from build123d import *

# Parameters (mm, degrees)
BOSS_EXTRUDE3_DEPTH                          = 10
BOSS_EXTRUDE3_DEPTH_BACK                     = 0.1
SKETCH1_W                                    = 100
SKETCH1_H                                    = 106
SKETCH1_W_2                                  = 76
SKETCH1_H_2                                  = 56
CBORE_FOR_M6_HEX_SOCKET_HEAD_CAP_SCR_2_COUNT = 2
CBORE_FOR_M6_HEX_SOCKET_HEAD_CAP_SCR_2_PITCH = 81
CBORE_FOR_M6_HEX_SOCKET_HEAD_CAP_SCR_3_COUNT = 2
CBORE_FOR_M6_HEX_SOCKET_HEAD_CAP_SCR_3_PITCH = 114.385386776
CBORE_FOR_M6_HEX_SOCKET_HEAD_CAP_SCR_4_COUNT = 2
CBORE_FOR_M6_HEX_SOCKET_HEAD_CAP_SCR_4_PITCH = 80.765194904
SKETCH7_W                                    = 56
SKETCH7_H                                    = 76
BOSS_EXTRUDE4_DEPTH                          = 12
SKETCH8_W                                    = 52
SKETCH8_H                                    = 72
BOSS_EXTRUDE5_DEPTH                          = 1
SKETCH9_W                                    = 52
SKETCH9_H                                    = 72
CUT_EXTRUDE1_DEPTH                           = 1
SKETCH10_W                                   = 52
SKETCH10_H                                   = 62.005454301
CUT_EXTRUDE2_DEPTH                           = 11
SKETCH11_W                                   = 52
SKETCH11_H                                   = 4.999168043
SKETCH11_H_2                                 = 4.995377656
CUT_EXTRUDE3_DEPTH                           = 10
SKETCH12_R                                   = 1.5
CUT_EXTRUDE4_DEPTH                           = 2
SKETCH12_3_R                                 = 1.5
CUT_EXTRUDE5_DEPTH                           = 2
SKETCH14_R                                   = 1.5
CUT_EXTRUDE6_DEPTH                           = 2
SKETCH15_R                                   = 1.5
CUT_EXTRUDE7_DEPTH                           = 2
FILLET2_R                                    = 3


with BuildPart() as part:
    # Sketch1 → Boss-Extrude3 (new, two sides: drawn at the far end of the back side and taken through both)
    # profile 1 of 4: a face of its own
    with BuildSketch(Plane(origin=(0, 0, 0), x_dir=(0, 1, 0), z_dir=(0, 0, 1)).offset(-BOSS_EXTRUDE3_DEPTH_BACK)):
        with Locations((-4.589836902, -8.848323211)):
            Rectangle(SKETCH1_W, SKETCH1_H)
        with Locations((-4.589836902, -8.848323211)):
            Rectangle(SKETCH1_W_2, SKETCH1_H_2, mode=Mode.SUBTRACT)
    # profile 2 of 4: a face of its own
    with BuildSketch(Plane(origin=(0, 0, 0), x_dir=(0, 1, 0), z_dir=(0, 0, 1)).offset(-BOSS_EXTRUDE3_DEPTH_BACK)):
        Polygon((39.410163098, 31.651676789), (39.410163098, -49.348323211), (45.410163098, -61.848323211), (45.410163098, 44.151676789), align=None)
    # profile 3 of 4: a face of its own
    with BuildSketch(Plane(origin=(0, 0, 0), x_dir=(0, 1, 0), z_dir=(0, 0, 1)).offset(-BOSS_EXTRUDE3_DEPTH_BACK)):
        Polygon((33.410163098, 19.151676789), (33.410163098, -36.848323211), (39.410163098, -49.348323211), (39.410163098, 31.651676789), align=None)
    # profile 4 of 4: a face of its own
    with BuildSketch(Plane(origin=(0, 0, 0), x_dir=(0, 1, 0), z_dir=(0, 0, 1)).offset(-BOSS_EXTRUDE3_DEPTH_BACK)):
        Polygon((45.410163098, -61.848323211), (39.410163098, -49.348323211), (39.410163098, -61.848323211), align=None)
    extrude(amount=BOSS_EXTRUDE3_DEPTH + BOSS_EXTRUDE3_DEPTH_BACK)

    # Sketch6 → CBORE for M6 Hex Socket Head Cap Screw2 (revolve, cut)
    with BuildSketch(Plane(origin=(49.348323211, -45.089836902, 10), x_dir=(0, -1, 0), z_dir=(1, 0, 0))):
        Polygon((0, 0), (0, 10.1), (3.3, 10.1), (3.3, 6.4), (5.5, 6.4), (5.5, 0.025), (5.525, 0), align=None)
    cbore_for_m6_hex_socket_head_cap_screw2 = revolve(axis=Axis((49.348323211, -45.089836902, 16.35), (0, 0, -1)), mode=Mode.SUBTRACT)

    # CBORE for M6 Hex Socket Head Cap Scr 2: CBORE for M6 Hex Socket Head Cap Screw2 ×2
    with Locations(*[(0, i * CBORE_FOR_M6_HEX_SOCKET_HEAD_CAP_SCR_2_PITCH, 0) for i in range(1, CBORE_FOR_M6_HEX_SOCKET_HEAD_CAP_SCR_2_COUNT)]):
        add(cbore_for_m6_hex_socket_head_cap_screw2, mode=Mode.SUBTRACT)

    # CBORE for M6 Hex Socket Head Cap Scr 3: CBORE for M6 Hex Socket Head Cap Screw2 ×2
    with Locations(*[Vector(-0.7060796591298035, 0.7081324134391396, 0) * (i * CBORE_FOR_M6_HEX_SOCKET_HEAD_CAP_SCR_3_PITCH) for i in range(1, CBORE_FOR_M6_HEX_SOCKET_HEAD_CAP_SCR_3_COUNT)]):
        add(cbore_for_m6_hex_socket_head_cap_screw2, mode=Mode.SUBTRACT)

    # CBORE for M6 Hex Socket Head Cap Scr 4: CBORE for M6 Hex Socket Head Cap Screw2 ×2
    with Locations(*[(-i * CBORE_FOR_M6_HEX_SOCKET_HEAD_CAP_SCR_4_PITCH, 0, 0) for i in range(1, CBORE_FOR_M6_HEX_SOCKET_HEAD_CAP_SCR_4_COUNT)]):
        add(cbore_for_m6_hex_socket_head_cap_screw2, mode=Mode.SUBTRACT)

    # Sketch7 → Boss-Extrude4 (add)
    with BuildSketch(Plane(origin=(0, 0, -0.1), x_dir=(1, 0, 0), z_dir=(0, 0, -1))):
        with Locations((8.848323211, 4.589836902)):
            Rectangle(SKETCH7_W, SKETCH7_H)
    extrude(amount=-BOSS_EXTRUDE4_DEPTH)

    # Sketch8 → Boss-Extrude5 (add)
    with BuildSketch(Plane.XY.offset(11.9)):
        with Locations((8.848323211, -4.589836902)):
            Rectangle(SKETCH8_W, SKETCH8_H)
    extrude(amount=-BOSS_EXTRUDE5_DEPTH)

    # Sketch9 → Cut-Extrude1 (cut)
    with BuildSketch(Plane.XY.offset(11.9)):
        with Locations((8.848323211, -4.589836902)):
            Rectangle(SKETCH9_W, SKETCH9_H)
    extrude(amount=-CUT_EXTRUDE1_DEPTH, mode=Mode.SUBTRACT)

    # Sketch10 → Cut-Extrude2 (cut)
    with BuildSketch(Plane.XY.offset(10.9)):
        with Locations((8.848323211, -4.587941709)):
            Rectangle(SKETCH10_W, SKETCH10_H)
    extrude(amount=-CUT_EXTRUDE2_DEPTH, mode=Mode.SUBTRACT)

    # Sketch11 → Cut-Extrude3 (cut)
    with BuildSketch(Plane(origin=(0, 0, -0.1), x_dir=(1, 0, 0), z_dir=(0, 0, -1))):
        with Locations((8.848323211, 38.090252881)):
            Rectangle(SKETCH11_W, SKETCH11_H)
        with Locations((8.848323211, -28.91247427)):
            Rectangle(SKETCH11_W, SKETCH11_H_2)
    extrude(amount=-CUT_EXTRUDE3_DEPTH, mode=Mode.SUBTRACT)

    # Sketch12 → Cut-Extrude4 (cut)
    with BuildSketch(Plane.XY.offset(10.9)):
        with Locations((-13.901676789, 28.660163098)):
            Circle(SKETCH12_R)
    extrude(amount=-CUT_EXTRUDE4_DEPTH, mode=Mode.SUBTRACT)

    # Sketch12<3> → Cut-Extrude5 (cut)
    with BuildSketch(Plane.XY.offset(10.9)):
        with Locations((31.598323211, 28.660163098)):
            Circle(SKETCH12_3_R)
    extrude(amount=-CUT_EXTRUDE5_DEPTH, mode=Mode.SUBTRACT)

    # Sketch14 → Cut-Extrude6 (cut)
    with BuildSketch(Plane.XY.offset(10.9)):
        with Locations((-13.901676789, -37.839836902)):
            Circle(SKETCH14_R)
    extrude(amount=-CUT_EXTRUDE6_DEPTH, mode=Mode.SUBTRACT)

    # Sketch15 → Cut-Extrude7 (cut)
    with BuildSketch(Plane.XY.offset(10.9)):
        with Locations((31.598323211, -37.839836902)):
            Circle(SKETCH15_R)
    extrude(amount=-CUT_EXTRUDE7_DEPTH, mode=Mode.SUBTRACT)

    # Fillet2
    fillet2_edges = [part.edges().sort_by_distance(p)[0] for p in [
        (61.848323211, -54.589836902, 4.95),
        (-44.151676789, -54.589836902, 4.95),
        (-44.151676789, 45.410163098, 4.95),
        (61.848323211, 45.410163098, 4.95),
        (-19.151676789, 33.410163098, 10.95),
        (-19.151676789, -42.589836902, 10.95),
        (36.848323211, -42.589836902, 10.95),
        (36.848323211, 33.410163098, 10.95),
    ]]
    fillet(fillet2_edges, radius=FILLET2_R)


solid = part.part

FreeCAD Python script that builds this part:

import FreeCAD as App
import Part
import Sketcher

V = App.Vector
Q = App.Units.Quantity


def edges_at(feature, points):
    """Names of the edges that pass closest to the given points."""
    edges = feature.Shape.Edges
    near = lambda p: min(range(len(edges)), key=lambda i: edges[i].distToShape(Part.Vertex(*p))[0])
    return sorted({f"Edge{near(p) + 1}" for p in points})

doc = App.newDocument("Part")
body = doc.addObject("PartDesign::Body", "Body")

sketch1 = body.newObject("Sketcher::SketchObject", "Sketch")
sketch1.AttachmentSupport = (doc.getObject("XY_Plane"), [""])
sketch1.MapMode = "FlatFace"
sketch1.addGeometry(Part.LineSegment(V(-44, -55, 0), V(62, -55, 0)), False)
sketch1.addGeometry(Part.LineSegment(V(62, -55, 0), V(62, 45, 0)), False)
sketch1.addGeometry(Part.LineSegment(V(62, 45, 0), V(-44, 45, 0)), False)
sketch1.addGeometry(Part.LineSegment(V(-44, 45, 0), V(-44, -55, 0)), False)
sketch1.addGeometry(Part.LineSegment(V(-19, -43, 0), V(-19, 33, 0)), False)
sketch1.addGeometry(Part.LineSegment(V(-19, 33, 0), V(37, 33, 0)), False)
sketch1.addGeometry(Part.LineSegment(V(37, 33, 0), V(37, -43, 0)), False)
sketch1.addGeometry(Part.LineSegment(V(37, -43, 0), V(-19, -43, 0)), False)
sketch1.addConstraint(Sketcher.Constraint("Coincident", 0, 2, 1, 1))
sketch1.addConstraint(Sketcher.Constraint("Coincident", 1, 2, 2, 1))
sketch1.addConstraint(Sketcher.Constraint("Coincident", 2, 2, 3, 1))
sketch1.addConstraint(Sketcher.Constraint("Coincident", 3, 2, 0, 1))
sketch1.addConstraint(Sketcher.Constraint("Coincident", 4, 2, 5, 1))
sketch1.addConstraint(Sketcher.Constraint("Coincident", 5, 2, 6, 1))
sketch1.addConstraint(Sketcher.Constraint("Coincident", 6, 2, 7, 1))
sketch1.addConstraint(Sketcher.Constraint("Coincident", 7, 2, 4, 1))
sketch1.addConstraint(Sketcher.Constraint("Horizontal", 0))
sketch1.addConstraint(Sketcher.Constraint("Vertical", 1))
sketch1.addConstraint(Sketcher.Constraint("Horizontal", 2))
sketch1.addConstraint(Sketcher.Constraint("Vertical", 3))
sketch1.addConstraint(Sketcher.Constraint("Vertical", 4))
sketch1.addConstraint(Sketcher.Constraint("Horizontal", 5))
sketch1.addConstraint(Sketcher.Constraint("Vertical", 6))
sketch1.addConstraint(Sketcher.Constraint("Horizontal", 7))
sketch1.addConstraint(Sketcher.Constraint("DistanceX", 0, 1, 0, 2, 106.0))
sketch1.addConstraint(Sketcher.Constraint("DistanceX", 5, 1, 5, 2, 56.0))
sketch1.addConstraint(Sketcher.Constraint("DistanceY", 1, 1, 1, 2, 100.0))
sketch1.addConstraint(Sketcher.Constraint("DistanceY", 4, 1, 4, 2, 76.0))
sketch1.addConstraint(Sketcher.Constraint("DistanceX", 2, 2, 4, 2, 25.0))
sketch1.addConstraint(Sketcher.Constraint("DistanceY", 4, 2, 2, 2, 12.0))
sketch1.addConstraint(Sketcher.Constraint("DistanceX", -1, 1, 0, 2, 61.848323))
sketch1.addConstraint(Sketcher.Constraint("DistanceY", 0, 2, -1, 1, 54.589837))
pad1 = body.newObject("PartDesign::Pad", "Pad")
pad1.Profile = sketch1
pad1.Type = "TwoLengths"
pad1.Length = 10
pad1.Length2 = 0.1

sketch2 = body.newObject("Sketcher::SketchObject", "Sketch001")
sketch2.AttachmentSupport = (doc.getObject("YZ_Plane"), [""])
sketch2.MapMode = "FlatFace"
sketch2.AttachmentOffset = App.Placement(V(0, 0, 49.348323), App.Rotation())
sketch2.addGeometry(Part.LineSegment(V(-45.09, -0.1, 0), V(-45.09, 10, 0)), False)
sketch2.addGeometry(Part.LineSegment(V(-45.09, 10, 0), V(-50.615, 10, 0)), False)
sketch2.addGeometry(Part.LineSegment(V(-50.615, 10, 0), V(-50.59, 9.975, 0)), False)
sketch2.addGeometry(Part.LineSegment(V(-50.59, 9.975, 0), V(-50.59, 3.6, 0)), False)
sketch2.addGeometry(Part.LineSegment(V(-50.59, 3.6, 0), V(-48.39, 3.6, 0)), False)
sketch2.addGeometry(Part.LineSegment(V(-48.39, 3.6, 0), V(-48.39, -0.1, 0)), False)
sketch2.addGeometry(Part.LineSegment(V(-48.39, -0.1, 0), V(-45.09, -0.1, 0)), False)
sketch2.addGeometry(Part.LineSegment(V(-45.09, 10, 0), V(-45.09, -0.1, 0)), True)
sketch2.addConstraint(Sketcher.Constraint("Coincident", 0, 2, 1, 1))
sketch2.addConstraint(Sketcher.Constraint("Coincident", 1, 2, 2, 1))
sketch2.addConstraint(Sketcher.Constraint("Coincident", 2, 2, 3, 1))
sketch2.addConstraint(Sketcher.Constraint("Coincident", 3, 2, 4, 1))
sketch2.addConstraint(Sketcher.Constraint("Coincident", 4, 2, 5, 1))
sketch2.addConstraint(Sketcher.Constraint("Coincident", 5, 2, 6, 1))
sketch2.addConstraint(Sketcher.Constraint("Coincident", 6, 2, 0, 1))
sketch2.addConstraint(Sketcher.Constraint("Vertical", 0))
sketch2.addConstraint(Sketcher.Constraint("Horizontal", 1))
sketch2.addConstraint(Sketcher.Constraint("Vertical", 3))
sketch2.addConstraint(Sketcher.Constraint("Horizontal", 4))
sketch2.addConstraint(Sketcher.Constraint("Vertical", 5))
sketch2.addConstraint(Sketcher.Constraint("Horizontal", 6))
sketch2.addConstraint(Sketcher.Constraint("Vertical", 7))
sketch2.addConstraint(Sketcher.Constraint("Coincident", 7, 1, 0, 2))
sketch2.addConstraint(Sketcher.Constraint("Horizontal", 5, 2, 7, 2))
sketch2.addConstraint(Sketcher.Constraint("Angle", 2, Q("-45 deg")))
sketch2.addConstraint(Sketcher.Constraint("DistanceX", 4, 1, 4, 2, 2.2))
sketch2.addConstraint(Sketcher.Constraint("DistanceX", 6, 1, 6, 2, 3.3))
sketch2.addConstraint(Sketcher.Constraint("DistanceY", 0, 1, 0, 2, 10.1))
sketch2.addConstraint(Sketcher.Constraint("DistanceY", 5, 2, 5, 1, 3.7))
sketch2.addConstraint(Sketcher.Constraint("DistanceY", -1, 1, 0, 2, 10.0))
sketch2.addConstraint(Sketcher.Constraint("DistanceX", 1, 2, 1, 1, 5.525))
sketch2.addConstraint(Sketcher.Constraint("DistanceX", 0, 2, -1, 1, 45.089837))
groove = body.newObject("PartDesign::Groove", "Groove")
groove.Profile = sketch2
groove.ReferenceAxis = (sketch2, ["Axis0"])
groove.Angle = 360
doc.recompute()

linearpattern = body.newObject("PartDesign::LinearPattern", "LinearPattern")
linearpattern.Originals = [groove]
linearpattern.Direction = (doc.getObject("Y_Axis"), [""])
linearpattern.Mode = "offset"
linearpattern.Offset = 81
linearpattern.Occurrences = 2
body.Tip = linearpattern
doc.recompute()

datumline = body.newObject("PartDesign::Line", "DatumLine")
datumline.Placement = App.Placement(V(0, 0, 0), App.Rotation(V(0, 0, 1), V(-0.706079659, 0.708132413, 0)))
linearpattern2 = body.newObject("PartDesign::LinearPattern", "LinearPattern001")
linearpattern2.Originals = [groove]
linearpattern2.Direction = (datumline, [""])
linearpattern2.Mode = "offset"
linearpattern2.Offset = 114.385387
linearpattern2.Occurrences = 2
body.Tip = linearpattern2
doc.recompute()

linearpattern3 = body.newObject("PartDesign::LinearPattern", "LinearPattern002")
linearpattern3.Originals = [groove]
linearpattern3.Direction = (doc.getObject("X_Axis"), [""])
linearpattern3.Mode = "offset"
linearpattern3.Offset = 80.765195
linearpattern3.Occurrences = 2
linearpattern3.Reversed = True
body.Tip = linearpattern3

sketch3 = body.newObject("Sketcher::SketchObject", "Sketch002")
sketch3.AttachmentSupport = (doc.getObject("XY_Plane"), [""])
sketch3.MapMode = "FlatFace"
sketch3.AttachmentOffset = App.Placement(V(0, 0, -0.1), App.Rotation())
sketch3.addGeometry(Part.LineSegment(V(-19, -43, 0), V(-19, 33, 0)), False)
sketch3.addGeometry(Part.LineSegment(V(-19, 33, 0), V(37, 33, 0)), False)
sketch3.addGeometry(Part.LineSegment(V(37, 33, 0), V(37, -43, 0)), False)
sketch3.addGeometry(Part.LineSegment(V(37, -43, 0), V(-19, -43, 0)), False)
sketch3.addConstraint(Sketcher.Constraint("Coincident", 0, 2, 1, 1))
sketch3.addConstraint(Sketcher.Constraint("Coincident", 1, 2, 2, 1))
sketch3.addConstraint(Sketcher.Constraint("Coincident", 2, 2, 3, 1))
sketch3.addConstraint(Sketcher.Constraint("Coincident", 3, 2, 0, 1))
sketch3.addConstraint(Sketcher.Constraint("Vertical", 0))
sketch3.addConstraint(Sketcher.Constraint("Horizontal", 1))
sketch3.addConstraint(Sketcher.Constraint("Vertical", 2))
sketch3.addConstraint(Sketcher.Constraint("Horizontal", 3))
sketch3.addConstraint(Sketcher.Constraint("DistanceX", 1, 1, 1, 2, 56.0))
sketch3.addConstraint(Sketcher.Constraint("DistanceY", 0, 1, 0, 2, 76.0))
sketch3.addConstraint(Sketcher.Constraint("DistanceX", 0, 2, -1, 1, 19.151677))
sketch3.addConstraint(Sketcher.Constraint("DistanceY", -1, 1, 0, 2, 33.410163))
pad2 = body.newObject("PartDesign::Pad", "Pad001")
pad2.Profile = sketch3
pad2.Length = 12

sketch4 = body.newObject("Sketcher::SketchObject", "Sketch003")
sketch4.AttachmentSupport = (doc.getObject("XY_Plane"), [""])
sketch4.MapMode = "FlatFace"
sketch4.AttachmentOffset = App.Placement(V(0, 0, 11.9), App.Rotation())
sketch4.addGeometry(Part.LineSegment(V(-17, 31, 0), V(-17, -41, 0)), False)
sketch4.addGeometry(Part.LineSegment(V(-17, -41, 0), V(35, -41, 0)), False)
sketch4.addGeometry(Part.LineSegment(V(35, -41, 0), V(35, 31, 0)), False)
sketch4.addGeometry(Part.LineSegment(V(35, 31, 0), V(-17, 31, 0)), False)
sketch4.addConstraint(Sketcher.Constraint("Coincident", 0, 2, 1, 1))
sketch4.addConstraint(Sketcher.Constraint("Coincident", 1, 2, 2, 1))
sketch4.addConstraint(Sketcher.Constraint("Coincident", 2, 2, 3, 1))
sketch4.addConstraint(Sketcher.Constraint("Coincident", 3, 2, 0, 1))
sketch4.addConstraint(Sketcher.Constraint("Vertical", 0))
sketch4.addConstraint(Sketcher.Constraint("Horizontal", 1))
sketch4.addConstraint(Sketcher.Constraint("Vertical", 2))
sketch4.addConstraint(Sketcher.Constraint("Horizontal", 3))
sketch4.addConstraint(Sketcher.Constraint("DistanceX", 1, 1, 1, 2, 52.0))
sketch4.addConstraint(Sketcher.Constraint("DistanceY", 0, 2, 0, 1, 72.0))
sketch4.addConstraint(Sketcher.Constraint("DistanceX", 0, 2, -1, 1, 17.151677))
sketch4.addConstraint(Sketcher.Constraint("DistanceY", 0, 2, -1, 1, 40.589837))
pad3 = body.newObject("PartDesign::Pad", "Pad002")
pad3.Profile = sketch4
pad3.Length = 1
pad3.Reversed = True

sketch5 = body.newObject("Sketcher::SketchObject", "Sketch004")
sketch5.AttachmentSupport = (doc.getObject("XY_Plane"), [""])
sketch5.MapMode = "FlatFace"
sketch5.AttachmentOffset = App.Placement(V(0, 0, 11.9), App.Rotation())
sketch5.addGeometry(Part.LineSegment(V(-17, 31, 0), V(-17, -41, 0)), False)
sketch5.addGeometry(Part.LineSegment(V(-17, -41, 0), V(35, -41, 0)), False)
sketch5.addGeometry(Part.LineSegment(V(35, -41, 0), V(35, 31, 0)), False)
sketch5.addGeometry(Part.LineSegment(V(35, 31, 0), V(-17, 31, 0)), False)
sketch5.addConstraint(Sketcher.Constraint("Coincident", 0, 2, 1, 1))
sketch5.addConstraint(Sketcher.Constraint("Coincident", 1, 2, 2, 1))
sketch5.addConstraint(Sketcher.Constraint("Coincident", 2, 2, 3, 1))
sketch5.addConstraint(Sketcher.Constraint("Coincident", 3, 2, 0, 1))
sketch5.addConstraint(Sketcher.Constraint("Vertical", 0))
sketch5.addConstraint(Sketcher.Constraint("Horizontal", 1))
sketch5.addConstraint(Sketcher.Constraint("Vertical", 2))
sketch5.addConstraint(Sketcher.Constraint("Horizontal", 3))
sketch5.addConstraint(Sketcher.Constraint("DistanceX", 1, 1, 1, 2, 52.0))
sketch5.addConstraint(Sketcher.Constraint("DistanceY", 0, 2, 0, 1, 72.0))
sketch5.addConstraint(Sketcher.Constraint("DistanceX", 0, 2, -1, 1, 17.151677))
sketch5.addConstraint(Sketcher.Constraint("DistanceY", 0, 2, -1, 1, 40.589837))
pocket1 = body.newObject("PartDesign::Pocket", "Pocket")
pocket1.Profile = sketch5
pocket1.Length = 1

sketch6 = body.newObject("Sketcher::SketchObject", "Sketch005")
sketch6.AttachmentSupport = (doc.getObject("XY_Plane"), [""])
sketch6.MapMode = "FlatFace"
sketch6.AttachmentOffset = App.Placement(V(0, 0, 10.9), App.Rotation())
sketch6.addGeometry(Part.LineSegment(V(-17, 26, 0), V(-17, -36, 0)), False)
sketch6.addGeometry(Part.LineSegment(V(-17, -36, 0), V(35, -36, 0)), False)
sketch6.addGeometry(Part.LineSegment(V(35, -36, 0), V(35, 26, 0)), False)
sketch6.addGeometry(Part.LineSegment(V(35, 26, 0), V(-17, 26, 0)), False)
sketch6.addConstraint(Sketcher.Constraint("Coincident", 0, 2, 1, 1))
sketch6.addConstraint(Sketcher.Constraint("Coincident", 1, 2, 2, 1))
sketch6.addConstraint(Sketcher.Constraint("Coincident", 2, 2, 3, 1))
sketch6.addConstraint(Sketcher.Constraint("Coincident", 3, 2, 0, 1))
sketch6.addConstraint(Sketcher.Constraint("Vertical", 0))
sketch6.addConstraint(Sketcher.Constraint("Horizontal", 1))
sketch6.addConstraint(Sketcher.Constraint("Vertical", 2))
sketch6.addConstraint(Sketcher.Constraint("Horizontal", 3))
sketch6.addConstraint(Sketcher.Constraint("DistanceX", 1, 1, 1, 2, 52.0))
sketch6.addConstraint(Sketcher.Constraint("DistanceY", 0, 2, 0, 1, 62.005454))
sketch6.addConstraint(Sketcher.Constraint("DistanceY", 0, 2, -1, 1, 35.590669))
sketch6.addConstraint(Sketcher.Constraint("DistanceX", 0, 2, -1, 1, 17.151677))
pocket2 = body.newObject("PartDesign::Pocket", "Pocket001")
pocket2.Profile = sketch6
pocket2.Length = 11

sketch7 = body.newObject("Sketcher::SketchObject", "Sketch006")
sketch7.AttachmentSupport = (doc.getObject("XY_Plane"), [""])
sketch7.MapMode = "FlatFace"
sketch7.AttachmentOffset = App.Placement(V(0, 0, -0.1), App.Rotation())
sketch7.addGeometry(Part.LineSegment(V(-17.2, -40.6, 0), V(-17.2, -35.6, 0)), False)
sketch7.addGeometry(Part.LineSegment(V(-17.2, -35.6, 0), V(34.8, -35.6, 0)), False)
sketch7.addGeometry(Part.LineSegment(V(34.8, -35.6, 0), V(34.8, -40.6, 0)), False)
sketch7.addGeometry(Part.LineSegment(V(34.8, -40.6, 0), V(-17.2, -40.6, 0)), False)
sketch7.addGeometry(Part.LineSegment(V(-17.2, 26.4, 0), V(-17.2, 31.4, 0)), False)
sketch7.addGeometry(Part.LineSegment(V(-17.2, 31.4, 0), V(34.8, 31.4, 0)), False)
sketch7.addGeometry(Part.LineSegment(V(34.8, 31.4, 0), V(34.8, 26.4, 0)), False)
sketch7.addGeometry(Part.LineSegment(V(34.8, 26.4, 0), V(-17.2, 26.4, 0)), False)
sketch7.addConstraint(Sketcher.Constraint("Coincident", 0, 2, 1, 1))
sketch7.addConstraint(Sketcher.Constraint("Coincident", 1, 2, 2, 1))
sketch7.addConstraint(Sketcher.Constraint("Coincident", 2, 2, 3, 1))
sketch7.addConstraint(Sketcher.Constraint("Coincident", 3, 2, 0, 1))
sketch7.addConstraint(Sketcher.Constraint("Coincident", 4, 2, 5, 1))
sketch7.addConstraint(Sketcher.Constraint("Coincident", 5, 2, 6, 1))
sketch7.addConstraint(Sketcher.Constraint("Coincident", 6, 2, 7, 1))
sketch7.addConstraint(Sketcher.Constraint("Coincident", 7, 2, 4, 1))
sketch7.addConstraint(Sketcher.Constraint("Vertical", 0))
sketch7.addConstraint(Sketcher.Constraint("Horizontal", 1))
sketch7.addConstraint(Sketcher.Constraint("Vertical", 2))
sketch7.addConstraint(Sketcher.Constraint("Horizontal", 3))
sketch7.addConstraint(Sketcher.Constraint("Vertical", 4))
sketch7.addConstraint(Sketcher.Constraint("Horizontal", 5))
sketch7.addConstraint(Sketcher.Constraint("Vertical", 6))
sketch7.addConstraint(Sketcher.Constraint("Horizontal", 7))
sketch7.addConstraint(Sketcher.Constraint("Vertical", 3, 2, 4, 2))
sketch7.addConstraint(Sketcher.Constraint("Vertical", 2, 2, 5, 2))
sketch7.addConstraint(Sketcher.Constraint("DistanceX", 1, 1, 1, 2, 52.0))
sketch7.addConstraint(Sketcher.Constraint("DistanceY", 3, 2, 4, 2, 72.0))
sketch7.addConstraint(Sketcher.Constraint("DistanceY", 0, 1, 0, 2, 4.999168))
sketch7.addConstraint(Sketcher.Constraint("DistanceY", 4, 1, 4, 2, 4.995378))
sketch7.addConstraint(Sketcher.Constraint("DistanceY", 0, 2, -1, 1, 35.590669))
sketch7.addConstraint(Sketcher.Constraint("DistanceX", 0, 2, -1, 1, 17.151677))
pocket3 = body.newObject("PartDesign::Pocket", "Pocket002")
pocket3.Profile = sketch7
pocket3.Length = 10
pocket3.Reversed = True

sketch8 = body.newObject("Sketcher::SketchObject", "Sketch007")
sketch8.AttachmentSupport = (doc.getObject("XY_Plane"), [""])
sketch8.MapMode = "FlatFace"
sketch8.AttachmentOffset = App.Placement(V(0, 0, 10.9), App.Rotation())
sketch8.addGeometry(Part.Circle(V(-13.9, 28.7, 0), V(0, 0, 1), 1.5), False)
sketch8.addConstraint(Sketcher.Constraint("Diameter", 0, 3.0))
sketch8.addConstraint(Sketcher.Constraint("DistanceX", 0, 3, -1, 1, 13.901677))
sketch8.addConstraint(Sketcher.Constraint("DistanceY", -1, 1, 0, 3, 28.660163))
pocket4 = body.newObject("PartDesign::Pocket", "Pocket003")
pocket4.Profile = sketch8
pocket4.Length = 2

sketch9 = body.newObject("Sketcher::SketchObject", "Sketch008")
sketch9.AttachmentSupport = (doc.getObject("XY_Plane"), [""])
sketch9.MapMode = "FlatFace"
sketch9.AttachmentOffset = App.Placement(V(0, 0, 10.9), App.Rotation())
sketch9.addGeometry(Part.Circle(V(31.6, 28.7, 0), V(0, 0, 1), 1.5), False)
sketch9.addConstraint(Sketcher.Constraint("Diameter", 0, 3.0))
sketch9.addConstraint(Sketcher.Constraint("DistanceX", -1, 1, 0, 3, 31.598323))
sketch9.addConstraint(Sketcher.Constraint("DistanceY", -1, 1, 0, 3, 28.660163))
pocket5 = body.newObject("PartDesign::Pocket", "Pocket004")
pocket5.Profile = sketch9
pocket5.Length = 2

sketch10 = body.newObject("Sketcher::SketchObject", "Sketch009")
sketch10.AttachmentSupport = (doc.getObject("XY_Plane"), [""])
sketch10.MapMode = "FlatFace"
sketch10.AttachmentOffset = App.Placement(V(0, 0, 10.9), App.Rotation())
sketch10.addGeometry(Part.Circle(V(-13.9, -37.8, 0), V(0, 0, 1), 1.5), False)
sketch10.addConstraint(Sketcher.Constraint("Diameter", 0, 3.0))
sketch10.addConstraint(Sketcher.Constraint("DistanceX", 0, 3, -1, 1, 13.901677))
sketch10.addConstraint(Sketcher.Constraint("DistanceY", 0, 3, -1, 1, 37.839837))
pocket6 = body.newObject("PartDesign::Pocket", "Pocket005")
pocket6.Profile = sketch10
pocket6.Length = 2

sketch11 = body.newObject("Sketcher::SketchObject", "Sketch010")
sketch11.AttachmentSupport = (doc.getObject("XY_Plane"), [""])
sketch11.MapMode = "FlatFace"
sketch11.AttachmentOffset = App.Placement(V(0, 0, 10.9), App.Rotation())
sketch11.addGeometry(Part.Circle(V(31.6, -37.8, 0), V(0, 0, 1), 1.5), False)
sketch11.addConstraint(Sketcher.Constraint("Diameter", 0, 3.0))
sketch11.addConstraint(Sketcher.Constraint("DistanceX", -1, 1, 0, 3, 31.598323))
sketch11.addConstraint(Sketcher.Constraint("DistanceY", 0, 3, -1, 1, 37.839837))
pocket7 = body.newObject("PartDesign::Pocket", "Pocket006")
pocket7.Profile = sketch11
pocket7.Length = 2
doc.recompute()

fillet = body.newObject("PartDesign::Fillet", "Fillet")
fillet.Base = (pocket7, edges_at(pocket7, [
    (61.848, -54.59, 4.95),
    (-44.152, -54.59, 4.95),
    (-44.152, 45.41, 4.95),
    (61.848, 45.41, 4.95),
    (-19.152, 33.41, 10.95),
    (-19.152, -42.59, 10.95),
    (36.848, -42.59, 10.95),
    (36.848, 33.41, 10.95),
]))
fillet.Radius = 3

doc.recompute()
